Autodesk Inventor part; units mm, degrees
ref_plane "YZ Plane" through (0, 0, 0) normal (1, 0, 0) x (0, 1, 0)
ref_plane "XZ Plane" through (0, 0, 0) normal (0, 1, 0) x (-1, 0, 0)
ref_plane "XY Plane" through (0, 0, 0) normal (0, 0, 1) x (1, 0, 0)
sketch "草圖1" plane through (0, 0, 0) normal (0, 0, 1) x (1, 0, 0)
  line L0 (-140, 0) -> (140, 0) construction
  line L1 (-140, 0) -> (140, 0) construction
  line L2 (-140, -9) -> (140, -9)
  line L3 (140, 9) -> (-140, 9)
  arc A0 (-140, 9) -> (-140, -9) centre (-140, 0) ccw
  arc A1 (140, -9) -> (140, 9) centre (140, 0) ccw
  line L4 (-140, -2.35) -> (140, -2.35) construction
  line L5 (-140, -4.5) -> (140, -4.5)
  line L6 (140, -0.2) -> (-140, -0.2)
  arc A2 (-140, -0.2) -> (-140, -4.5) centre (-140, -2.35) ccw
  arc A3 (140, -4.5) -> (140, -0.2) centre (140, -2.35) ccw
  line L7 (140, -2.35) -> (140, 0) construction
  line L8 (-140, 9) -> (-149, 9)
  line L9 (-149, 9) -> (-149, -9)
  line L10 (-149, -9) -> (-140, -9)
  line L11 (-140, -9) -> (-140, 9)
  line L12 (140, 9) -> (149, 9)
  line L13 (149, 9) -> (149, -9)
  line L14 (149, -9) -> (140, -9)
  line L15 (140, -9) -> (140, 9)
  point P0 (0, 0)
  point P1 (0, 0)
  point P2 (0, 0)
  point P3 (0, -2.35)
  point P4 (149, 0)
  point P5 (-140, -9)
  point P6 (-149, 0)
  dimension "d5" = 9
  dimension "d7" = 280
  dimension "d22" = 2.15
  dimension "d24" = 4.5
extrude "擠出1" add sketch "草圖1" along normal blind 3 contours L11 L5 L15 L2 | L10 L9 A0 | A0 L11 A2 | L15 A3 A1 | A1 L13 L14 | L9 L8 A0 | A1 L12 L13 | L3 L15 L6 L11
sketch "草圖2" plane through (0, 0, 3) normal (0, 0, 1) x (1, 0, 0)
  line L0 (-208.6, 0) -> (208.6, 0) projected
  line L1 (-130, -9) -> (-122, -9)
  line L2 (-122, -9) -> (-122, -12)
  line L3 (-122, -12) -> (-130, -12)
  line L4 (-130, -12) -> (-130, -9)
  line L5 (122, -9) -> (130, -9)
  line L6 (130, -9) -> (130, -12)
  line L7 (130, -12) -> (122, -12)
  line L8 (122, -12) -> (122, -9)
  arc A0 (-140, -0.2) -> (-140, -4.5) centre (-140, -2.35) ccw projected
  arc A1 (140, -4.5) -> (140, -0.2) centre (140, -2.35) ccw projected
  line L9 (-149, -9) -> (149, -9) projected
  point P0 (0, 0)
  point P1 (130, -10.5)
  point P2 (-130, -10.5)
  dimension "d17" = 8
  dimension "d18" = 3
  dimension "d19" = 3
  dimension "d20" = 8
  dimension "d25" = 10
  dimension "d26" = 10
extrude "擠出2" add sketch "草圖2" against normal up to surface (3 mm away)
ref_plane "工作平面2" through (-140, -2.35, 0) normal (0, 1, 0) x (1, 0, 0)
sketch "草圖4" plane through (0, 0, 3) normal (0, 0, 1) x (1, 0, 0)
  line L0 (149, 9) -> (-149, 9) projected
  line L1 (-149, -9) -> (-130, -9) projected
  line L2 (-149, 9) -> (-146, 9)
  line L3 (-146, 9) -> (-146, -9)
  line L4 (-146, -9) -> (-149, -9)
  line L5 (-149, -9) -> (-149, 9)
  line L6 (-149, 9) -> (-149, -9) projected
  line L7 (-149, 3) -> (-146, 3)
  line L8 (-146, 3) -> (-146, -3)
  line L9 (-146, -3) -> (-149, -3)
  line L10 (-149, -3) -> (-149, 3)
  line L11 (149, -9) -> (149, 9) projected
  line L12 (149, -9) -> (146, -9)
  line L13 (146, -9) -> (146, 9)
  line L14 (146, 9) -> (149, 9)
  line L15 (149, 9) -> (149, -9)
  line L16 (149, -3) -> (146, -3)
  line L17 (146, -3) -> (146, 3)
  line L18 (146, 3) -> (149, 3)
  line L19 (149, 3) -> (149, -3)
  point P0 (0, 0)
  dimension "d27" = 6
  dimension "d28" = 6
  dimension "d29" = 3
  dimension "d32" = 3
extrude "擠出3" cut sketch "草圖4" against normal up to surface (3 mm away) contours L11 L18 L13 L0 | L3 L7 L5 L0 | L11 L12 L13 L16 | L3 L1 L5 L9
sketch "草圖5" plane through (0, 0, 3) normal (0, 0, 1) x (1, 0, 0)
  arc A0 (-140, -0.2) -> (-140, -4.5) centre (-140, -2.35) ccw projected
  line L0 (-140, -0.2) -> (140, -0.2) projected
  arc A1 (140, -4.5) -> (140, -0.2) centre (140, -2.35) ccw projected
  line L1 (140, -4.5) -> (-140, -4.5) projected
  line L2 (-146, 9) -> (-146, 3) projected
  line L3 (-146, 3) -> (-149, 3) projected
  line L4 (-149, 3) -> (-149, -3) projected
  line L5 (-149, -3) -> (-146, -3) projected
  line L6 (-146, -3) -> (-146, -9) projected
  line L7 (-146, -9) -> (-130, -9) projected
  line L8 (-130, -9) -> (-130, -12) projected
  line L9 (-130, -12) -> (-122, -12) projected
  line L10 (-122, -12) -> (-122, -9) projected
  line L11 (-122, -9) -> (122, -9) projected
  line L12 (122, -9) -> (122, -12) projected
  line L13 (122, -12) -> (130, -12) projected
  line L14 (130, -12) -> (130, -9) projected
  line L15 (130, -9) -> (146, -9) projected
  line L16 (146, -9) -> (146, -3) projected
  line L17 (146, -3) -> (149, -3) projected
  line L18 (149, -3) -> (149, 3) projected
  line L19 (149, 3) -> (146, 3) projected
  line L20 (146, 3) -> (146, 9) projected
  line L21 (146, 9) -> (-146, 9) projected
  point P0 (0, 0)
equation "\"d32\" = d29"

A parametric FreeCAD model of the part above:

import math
import FreeCAD as App
import Part
import Sketcher

V = App.Vector

doc = App.newDocument("Part")
body = doc.addObject("PartDesign::Body", "Body")

sketch1 = body.newObject("Sketcher::SketchObject", "Sketch")
sketch1.AttachmentSupport = (doc.getObject("XY_Plane"), [""])
sketch1.MapMode = "FlatFace"
sketch1.addGeometry(Part.LineSegment(V(149, -9, 0), V(149, 9, 0)), False)
sketch1.addGeometry(Part.LineSegment(V(149, 9, 0), V(-149, 9, 0)), False)
sketch1.addGeometry(Part.LineSegment(V(-149, 9, 0), V(-149, -9, 0)), False)
sketch1.addGeometry(Part.LineSegment(V(-149, -9, 0), V(149, -9, 0)), False)
sketch1.addGeometry(Part.LineSegment(V(140, -4.5, 0), V(-140, -4.5, 0)), False)
sketch1.addGeometry(Part.ArcOfCircle(Part.Circle(V(-140, -2.35, 0), V(0, 0, 1), 2.15), math.radians(90), math.radians(270)), False)
sketch1.addGeometry(Part.LineSegment(V(-140, -0.2, 0), V(140, -0.2, 0)), False)
sketch1.addGeometry(Part.ArcOfCircle(Part.Circle(V(140, -2.35, 0), V(0, 0, 1), 2.15), math.radians(-90), math.radians(90)), False)
sketch1.addConstraint(Sketcher.Constraint("Coincident", 0, 2, 1, 1))
sketch1.addConstraint(Sketcher.Constraint("Coincident", 1, 2, 2, 1))
sketch1.addConstraint(Sketcher.Constraint("Coincident", 2, 2, 3, 1))
sketch1.addConstraint(Sketcher.Constraint("Coincident", 3, 2, 0, 1))
sketch1.addConstraint(Sketcher.Constraint("Tangent", 4, 2, 5, 2))
sketch1.addConstraint(Sketcher.Constraint("Tangent", 5, 1, 6, 1))
sketch1.addConstraint(Sketcher.Constraint("Tangent", 6, 2, 7, 2))
sketch1.addConstraint(Sketcher.Constraint("Tangent", 7, 1, 4, 1))
sketch1.addConstraint(Sketcher.Constraint("Vertical", 0))
sketch1.addConstraint(Sketcher.Constraint("Horizontal", 1))
sketch1.addConstraint(Sketcher.Constraint("Vertical", 2))
sketch1.addConstraint(Sketcher.Constraint("Horizontal", 3))
sketch1.addConstraint(Sketcher.Constraint("Horizontal", 4))
sketch1.addConstraint(Sketcher.Constraint("Horizontal", 6))
sketch1.addConstraint(Sketcher.Constraint("Symmetric", 0, 2, 2, 2, -1, 1))
sketch1.addConstraint(Sketcher.Constraint("DistanceX", 4, 2, 4, 1, 280.0))
sketch1.addConstraint(Sketcher.Constraint("Radius", 5, 2.15))
sketch1.addConstraint(Sketcher.Constraint("DistanceY", -1, 1, 0, 2, 9.0))
sketch1.addConstraint(Sketcher.Constraint("DistanceX", 7, 3, 0, 2, 9.0))
sketch1.addConstraint(Sketcher.Constraint("DistanceX", 1, 2, 5, 3, 9.0))
sketch1.addConstraint(Sketcher.Constraint("DistanceY", 4, 2, -1, 1, 4.5))
pad1 = body.newObject("PartDesign::Pad", "Pad")
pad1.Profile = sketch1
pad1.Length = 3

sketch2 = body.newObject("Sketcher::SketchObject", "Sketch001")
sketch2.AttachmentSupport = (doc.getObject("XY_Plane"), [""])
sketch2.MapMode = "FlatFace"
sketch2.AttachmentOffset = App.Placement(V(0, 0, 3), App.Rotation())
sketch2.addGeometry(Part.LineSegment(V(130, -9, 0), V(122, -9, 0)), False)
sketch2.addGeometry(Part.LineSegment(V(122, -9, 0), V(122, -12, 0)), False)
sketch2.addGeometry(Part.LineSegment(V(122, -12, 0), V(130, -12, 0)), False)
sketch2.addGeometry(Part.LineSegment(V(130, -12, 0), V(130, -9, 0)), False)
sketch2.addGeometry(Part.LineSegment(V(-122, -9, 0), V(-130, -9, 0)), False)
sketch2.addGeometry(Part.LineSegment(V(-130, -9, 0), V(-130, -12, 0)), False)
sketch2.addGeometry(Part.LineSegment(V(-130, -12, 0), V(-122, -12, 0)), False)
sketch2.addGeometry(Part.LineSegment(V(-122, -12, 0), V(-122, -9, 0)), False)
sketch2.addConstraint(Sketcher.Constraint("Coincident", 0, 2, 1, 1))
sketch2.addConstraint(Sketcher.Constraint("Coincident", 1, 2, 2, 1))
sketch2.addConstraint(Sketcher.Constraint("Coincident", 2, 2, 3, 1))
sketch2.addConstraint(Sketcher.Constraint("Coincident", 3, 2, 0, 1))
sketch2.addConstraint(Sketcher.Constraint("Coincident", 4, 2, 5, 1))
sketch2.addConstraint(Sketcher.Constraint("Coincident", 5, 2, 6, 1))
sketch2.addConstraint(Sketcher.Constraint("Coincident", 6, 2, 7, 1))
sketch2.addConstraint(Sketcher.Constraint("Coincident", 7, 2, 4, 1))
sketch2.addConstraint(Sketcher.Constraint("Horizontal", 0))
sketch2.addConstraint(Sketcher.Constraint("Vertical", 1))
sketch2.addConstraint(Sketcher.Constraint("Horizontal", 2))
sketch2.addConstraint(Sketcher.Constraint("Vertical", 3))
sketch2.addConstraint(Sketcher.Constraint("Horizontal", 4))
sketch2.addConstraint(Sketcher.Constraint("Vertical", 5))
sketch2.addConstraint(Sketcher.Constraint("Horizontal", 6))
sketch2.addConstraint(Sketcher.Constraint("Vertical", 7))
sketch2.addConstraint(Sketcher.Constraint("Symmetric", 3, 2, 4, 2, -2))
sketch2.addConstraint(Sketcher.Constraint("Symmetric", 1, 2, 6, 2, -2))
sketch2.addConstraint(Sketcher.Constraint("DistanceX", 0, 2, 0, 1, 8.0))
sketch2.addConstraint(Sketcher.Constraint("DistanceY", 1, 2, 1, 1, 3.0))
sketch2.addConstraint(Sketcher.Constraint("DistanceX", -1, 1, 0, 2, 122.0))
sketch2.addConstraint(Sketcher.Constraint("DistanceY", 0, 2, -1, 1, 9.0))
pad2 = body.newObject("PartDesign::Pad", "Pad001")
pad2.Profile = sketch2
pad2.Length = 3
pad2.Reversed = True

sketch3 = body.newObject("Sketcher::SketchObject", "Sketch002")
sketch3.AttachmentSupport = (doc.getObject("XY_Plane"), [""])
sketch3.MapMode = "FlatFace"
sketch3.AttachmentOffset = App.Placement(V(0, 0, 3), App.Rotation())
sketch3.addGeometry(Part.LineSegment(V(149, 3, 0), V(149, 9, 0)), False)
sketch3.addGeometry(Part.LineSegment(V(149, 9, 0), V(146, 9, 0)), False)
sketch3.addGeometry(Part.LineSegment(V(146, 9, 0), V(146, 3, 0)), False)
sketch3.addGeometry(Part.LineSegment(V(146, 3, 0), V(149, 3, 0)), False)
sketch3.addGeometry(Part.LineSegment(V(-146, 3, 0), V(-146, 9, 0)), False)
sketch3.addGeometry(Part.LineSegment(V(-146, 9, 0), V(-149, 9, 0)), False)
sketch3.addGeometry(Part.LineSegment(V(-149, 9, 0), V(-149, 3, 0)), False)
sketch3.addGeometry(Part.LineSegment(V(-149, 3, 0), V(-146, 3, 0)), False)
sketch3.addGeometry(Part.LineSegment(V(149, -9, 0), V(149, -3, 0)), False)
sketch3.addGeometry(Part.LineSegment(V(149, -3, 0), V(146, -3, 0)), False)
sketch3.addGeometry(Part.LineSegment(V(146, -3, 0), V(146, -9, 0)), False)
sketch3.addGeometry(Part.LineSegment(V(146, -9, 0), V(149, -9, 0)), False)
sketch3.addGeometry(Part.LineSegment(V(-146, -9, 0), V(-146, -3, 0)), False)
sketch3.addGeometry(Part.LineSegment(V(-146, -3, 0), V(-149, -3, 0)), False)
sketch3.addGeometry(Part.LineSegment(V(-149, -3, 0), V(-149, -9, 0)), False)
sketch3.addGeometry(Part.LineSegment(V(-149, -9, 0), V(-146, -9, 0)), False)
sketch3.addConstraint(Sketcher.Constraint("Coincident", 0, 2, 1, 1))
sketch3.addConstraint(Sketcher.Constraint("Coincident", 1, 2, 2, 1))
sketch3.addConstraint(Sketcher.Constraint("Coincident", 2, 2, 3, 1))
sketch3.addConstraint(Sketcher.Constraint("Coincident", 3, 2, 0, 1))
sketch3.addConstraint(Sketcher.Constraint("Coincident", 4, 2, 5, 1))
sketch3.addConstraint(Sketcher.Constraint("Coincident", 5, 2, 6, 1))
sketch3.addConstraint(Sketcher.Constraint("Coincident", 6, 2, 7, 1))
sketch3.addConstraint(Sketcher.Constraint("Coincident", 7, 2, 4, 1))
sketch3.addConstraint(Sketcher.Constraint("Coincident", 8, 2, 9, 1))
sketch3.addConstraint(Sketcher.Constraint("Coincident", 9, 2, 10, 1))
sketch3.addConstraint(Sketcher.Constraint("Coincident", 10, 2, 11, 1))
sketch3.addConstraint(Sketcher.Constraint("Coincident", 11, 2, 8, 1))
sketch3.addConstraint(Sketcher.Constraint("Coincident", 12, 2, 13, 1))
sketch3.addConstraint(Sketcher.Constraint("Coincident", 13, 2, 14, 1))
sketch3.addConstraint(Sketcher.Constraint("Coincident", 14, 2, 15, 1))
sketch3.addConstraint(Sketcher.Constraint("Coincident", 15, 2, 12, 1))
sketch3.addConstraint(Sketcher.Constraint("Vertical", 0))
sketch3.addConstraint(Sketcher.Constraint("Horizontal", 1))
sketch3.addConstraint(Sketcher.Constraint("Vertical", 2))
sketch3.addConstraint(Sketcher.Constraint("Horizontal", 3))
sketch3.addConstraint(Sketcher.Constraint("Vertical", 4))
sketch3.addConstraint(Sketcher.Constraint("Horizontal", 5))
sketch3.addConstraint(Sketcher.Constraint("Vertical", 6))
sketch3.addConstraint(Sketcher.Constraint("Horizontal", 7))
sketch3.addConstraint(Sketcher.Constraint("Vertical", 8))
sketch3.addConstraint(Sketcher.Constraint("Horizontal", 9))
sketch3.addConstraint(Sketcher.Constraint("Vertical", 10))
sketch3.addConstraint(Sketcher.Constraint("Horizontal", 11))
sketch3.addConstraint(Sketcher.Constraint("Vertical", 12))
sketch3.addConstraint(Sketcher.Constraint("Horizontal", 13))
sketch3.addConstraint(Sketcher.Constraint("Vertical", 14))
sketch3.addConstraint(Sketcher.Constraint("Horizontal", 15))
sketch3.addConstraint(Sketcher.Constraint("Symmetric", 6, 2, 8, 2, -1, 1))
sketch3.addConstraint(Sketcher.Constraint("Symmetric", 4, 2, 10, 2, -1, 1))
sketch3.addConstraint(Sketcher.Constraint("Symmetric", 2, 2, 12, 2, -1, 1))
sketch3.addConstraint(Sketcher.Constraint("Symmetric", 0, 2, 14, 2, -1, 1))
sketch3.addConstraint(Sketcher.Constraint("Symmetric", 1, 2, 4, 2, -2))
sketch3.addConstraint(Sketcher.Constraint("Symmetric", 3, 2, 6, 2, -2))
sketch3.addConstraint(Sketcher.Constraint("DistanceX", 1, 2, 1, 1, 3.0))
sketch3.addConstraint(Sketcher.Constraint("DistanceY", 0, 1, 0, 2, 6.0))
sketch3.addConstraint(Sketcher.Constraint("DistanceY", -1, 1, 2, 2, 3.0))
sketch3.addConstraint(Sketcher.Constraint("DistanceX", -1, 1, 0, 2, 149.0))
pocket1 = body.newObject("PartDesign::Pocket", "Pocket")
pocket1.Profile = sketch3
pocket1.Length = 3

doc.recompute()
